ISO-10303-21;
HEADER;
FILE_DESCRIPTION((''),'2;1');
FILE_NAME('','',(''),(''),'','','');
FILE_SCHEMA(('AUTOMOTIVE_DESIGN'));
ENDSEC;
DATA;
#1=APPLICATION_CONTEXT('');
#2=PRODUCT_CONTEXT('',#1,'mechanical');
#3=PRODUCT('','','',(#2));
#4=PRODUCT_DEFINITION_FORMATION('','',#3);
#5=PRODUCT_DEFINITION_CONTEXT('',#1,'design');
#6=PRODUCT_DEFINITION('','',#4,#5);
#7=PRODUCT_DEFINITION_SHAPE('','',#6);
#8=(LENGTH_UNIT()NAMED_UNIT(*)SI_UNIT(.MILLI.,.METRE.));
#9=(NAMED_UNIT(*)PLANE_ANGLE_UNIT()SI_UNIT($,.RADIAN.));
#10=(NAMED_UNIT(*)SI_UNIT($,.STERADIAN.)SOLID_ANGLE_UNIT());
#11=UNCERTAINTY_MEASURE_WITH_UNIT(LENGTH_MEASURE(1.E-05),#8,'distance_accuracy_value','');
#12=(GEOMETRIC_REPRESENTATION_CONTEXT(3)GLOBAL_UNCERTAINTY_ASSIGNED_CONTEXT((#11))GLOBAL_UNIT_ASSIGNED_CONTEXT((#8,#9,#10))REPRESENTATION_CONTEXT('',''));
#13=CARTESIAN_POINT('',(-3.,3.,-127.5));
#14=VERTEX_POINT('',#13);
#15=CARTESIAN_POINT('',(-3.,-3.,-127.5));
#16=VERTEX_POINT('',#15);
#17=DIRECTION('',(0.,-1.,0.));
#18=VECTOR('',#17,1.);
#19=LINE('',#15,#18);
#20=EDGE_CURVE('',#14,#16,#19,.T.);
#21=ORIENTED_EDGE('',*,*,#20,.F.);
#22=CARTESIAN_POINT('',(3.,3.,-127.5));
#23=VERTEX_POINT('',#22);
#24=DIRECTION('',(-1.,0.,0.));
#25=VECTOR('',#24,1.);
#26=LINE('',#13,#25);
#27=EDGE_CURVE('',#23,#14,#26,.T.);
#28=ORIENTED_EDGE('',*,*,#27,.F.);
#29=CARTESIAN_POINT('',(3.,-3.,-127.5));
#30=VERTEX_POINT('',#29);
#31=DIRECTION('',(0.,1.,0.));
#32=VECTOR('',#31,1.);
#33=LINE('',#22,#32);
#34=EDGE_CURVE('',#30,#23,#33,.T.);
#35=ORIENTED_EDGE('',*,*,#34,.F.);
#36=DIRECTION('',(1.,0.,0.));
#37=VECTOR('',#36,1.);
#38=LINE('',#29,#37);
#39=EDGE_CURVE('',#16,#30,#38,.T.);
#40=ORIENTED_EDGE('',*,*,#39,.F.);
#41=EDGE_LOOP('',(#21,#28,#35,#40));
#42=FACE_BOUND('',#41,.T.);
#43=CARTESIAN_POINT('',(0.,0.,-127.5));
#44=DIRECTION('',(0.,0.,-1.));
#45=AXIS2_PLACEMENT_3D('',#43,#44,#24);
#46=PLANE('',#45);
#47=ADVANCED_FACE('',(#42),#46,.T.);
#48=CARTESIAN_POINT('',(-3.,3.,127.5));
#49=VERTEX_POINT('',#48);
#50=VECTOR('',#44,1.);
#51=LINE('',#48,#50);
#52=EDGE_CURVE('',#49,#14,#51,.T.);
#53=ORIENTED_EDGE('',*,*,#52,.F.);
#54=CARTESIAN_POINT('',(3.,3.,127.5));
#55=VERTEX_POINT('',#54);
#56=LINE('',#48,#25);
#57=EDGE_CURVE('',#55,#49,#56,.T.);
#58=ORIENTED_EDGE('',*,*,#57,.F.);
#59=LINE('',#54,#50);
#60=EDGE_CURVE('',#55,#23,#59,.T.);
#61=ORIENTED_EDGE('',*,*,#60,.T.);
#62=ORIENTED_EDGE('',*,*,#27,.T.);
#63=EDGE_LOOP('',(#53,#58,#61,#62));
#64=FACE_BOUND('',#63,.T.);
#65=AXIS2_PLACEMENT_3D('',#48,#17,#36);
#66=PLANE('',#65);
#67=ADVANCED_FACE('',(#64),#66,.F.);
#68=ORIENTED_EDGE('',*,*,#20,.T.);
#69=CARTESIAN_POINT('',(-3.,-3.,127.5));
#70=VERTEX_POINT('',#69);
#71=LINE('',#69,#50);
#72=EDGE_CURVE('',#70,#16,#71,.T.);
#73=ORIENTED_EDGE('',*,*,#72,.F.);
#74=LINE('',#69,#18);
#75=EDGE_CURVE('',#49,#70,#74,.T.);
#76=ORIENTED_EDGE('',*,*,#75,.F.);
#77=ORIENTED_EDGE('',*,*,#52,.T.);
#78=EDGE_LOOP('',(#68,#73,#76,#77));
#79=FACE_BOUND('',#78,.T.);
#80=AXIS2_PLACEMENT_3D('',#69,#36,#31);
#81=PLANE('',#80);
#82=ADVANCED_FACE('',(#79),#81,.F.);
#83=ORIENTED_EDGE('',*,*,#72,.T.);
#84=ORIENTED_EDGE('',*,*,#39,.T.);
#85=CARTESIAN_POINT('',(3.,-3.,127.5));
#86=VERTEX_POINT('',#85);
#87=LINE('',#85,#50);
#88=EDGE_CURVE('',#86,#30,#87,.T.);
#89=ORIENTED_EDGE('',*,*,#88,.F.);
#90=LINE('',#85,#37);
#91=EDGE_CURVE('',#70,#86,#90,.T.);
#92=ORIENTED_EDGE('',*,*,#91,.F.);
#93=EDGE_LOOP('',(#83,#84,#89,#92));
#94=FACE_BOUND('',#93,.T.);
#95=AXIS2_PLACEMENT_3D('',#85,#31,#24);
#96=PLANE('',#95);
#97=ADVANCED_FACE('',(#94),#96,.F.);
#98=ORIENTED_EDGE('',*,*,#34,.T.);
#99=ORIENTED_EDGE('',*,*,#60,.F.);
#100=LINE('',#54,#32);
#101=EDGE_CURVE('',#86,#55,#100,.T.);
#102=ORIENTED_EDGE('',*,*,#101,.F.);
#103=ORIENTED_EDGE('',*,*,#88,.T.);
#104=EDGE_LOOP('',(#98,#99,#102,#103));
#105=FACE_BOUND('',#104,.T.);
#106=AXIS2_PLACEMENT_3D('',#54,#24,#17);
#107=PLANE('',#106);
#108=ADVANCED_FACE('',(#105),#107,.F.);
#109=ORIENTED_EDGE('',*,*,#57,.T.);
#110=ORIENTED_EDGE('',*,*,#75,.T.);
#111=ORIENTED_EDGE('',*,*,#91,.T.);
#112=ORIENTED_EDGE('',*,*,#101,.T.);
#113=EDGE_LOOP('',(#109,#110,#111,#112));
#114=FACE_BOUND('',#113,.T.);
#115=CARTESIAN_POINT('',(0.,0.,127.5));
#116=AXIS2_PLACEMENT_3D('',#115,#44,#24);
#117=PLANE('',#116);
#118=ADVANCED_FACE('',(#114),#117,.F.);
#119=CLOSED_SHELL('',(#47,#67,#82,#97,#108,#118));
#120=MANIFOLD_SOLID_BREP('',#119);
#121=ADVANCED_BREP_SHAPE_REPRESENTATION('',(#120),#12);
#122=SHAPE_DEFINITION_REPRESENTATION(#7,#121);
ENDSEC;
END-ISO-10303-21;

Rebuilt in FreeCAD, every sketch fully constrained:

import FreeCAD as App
import Part
import Sketcher
from FreeCAD import Vector

doc = App.newDocument("Part")
body = doc.addObject("PartDesign::Body", "Body")

# Sketch on XY plane
sketch1 = body.newObject("Sketcher::SketchObject", "Sketch")
sketch1.AttachmentSupport = (doc.getObject("XY_Plane"), [""])
sketch1.MapMode = "FlatFace"
sketch1.addGeometry(Part.LineSegment(Vector(-3, 3, 0), Vector(-3, -3, 0)), False)
sketch1.addGeometry(Part.LineSegment(Vector(-3, -3, 0), Vector(3, -3, 0)), False)
sketch1.addGeometry(Part.LineSegment(Vector(3, -3, 0), Vector(3, 3, 0)), False)
sketch1.addGeometry(Part.LineSegment(Vector(3, 3, 0), Vector(-3, 3, 0)), False)
sketch1.addConstraint(Sketcher.Constraint("Coincident", 0, 2, 1, 1))
sketch1.addConstraint(Sketcher.Constraint("Coincident", 1, 2, 2, 1))
sketch1.addConstraint(Sketcher.Constraint("Coincident", 2, 2, 3, 1))
sketch1.addConstraint(Sketcher.Constraint("Coincident", 3, 2, 0, 1))
sketch1.addConstraint(Sketcher.Constraint("Vertical", 0))
sketch1.addConstraint(Sketcher.Constraint("Horizontal", 1))
sketch1.addConstraint(Sketcher.Constraint("Vertical", 2))
sketch1.addConstraint(Sketcher.Constraint("Horizontal", 3))
sketch1.addConstraint(Sketcher.Constraint("Symmetric", 0, 2, 2, 2, -1, 1))
sketch1.addConstraint(Sketcher.Constraint("Equal", 3, 0))
sketch1.addConstraint(Sketcher.Constraint("DistanceX", 1, 1, 1, 2, 6.0))
pad1 = body.newObject("PartDesign::Pad", "Pad")
pad1.Profile = sketch1
pad1.Length = 255
pad1.Midplane = True

doc.recompute()
